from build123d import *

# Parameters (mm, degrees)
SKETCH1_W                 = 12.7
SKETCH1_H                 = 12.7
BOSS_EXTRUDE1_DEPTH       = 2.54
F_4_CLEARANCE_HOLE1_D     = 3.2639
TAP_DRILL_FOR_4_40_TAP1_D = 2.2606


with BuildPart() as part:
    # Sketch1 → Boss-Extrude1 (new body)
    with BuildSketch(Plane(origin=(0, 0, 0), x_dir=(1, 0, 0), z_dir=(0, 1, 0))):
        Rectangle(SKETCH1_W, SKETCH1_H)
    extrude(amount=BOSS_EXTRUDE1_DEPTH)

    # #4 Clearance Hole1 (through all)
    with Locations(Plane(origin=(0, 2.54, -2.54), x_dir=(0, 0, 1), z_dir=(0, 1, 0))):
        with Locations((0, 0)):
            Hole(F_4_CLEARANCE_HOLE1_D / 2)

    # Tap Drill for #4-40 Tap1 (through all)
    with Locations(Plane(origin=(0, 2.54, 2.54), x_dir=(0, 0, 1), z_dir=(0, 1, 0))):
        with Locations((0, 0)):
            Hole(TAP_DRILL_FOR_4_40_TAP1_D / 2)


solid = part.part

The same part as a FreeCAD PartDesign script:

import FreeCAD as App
import Part
import Sketcher
from FreeCAD import Vector
Q = App.Units.Quantity


def add_polygon(sketch, points):
    """Adds a closed chain of lines whose ends are joined by coincident constraints."""
    first, n = sketch.GeometryCount, len(points)
    for a, b in zip(points, points[1:] + points[:1]):
        sketch.addGeometry(Part.LineSegment(App.Vector(*a, 0), App.Vector(*b, 0)), False)
    for i in range(n):
        sketch.addConstraint(Sketcher.Constraint("Coincident", first + i, 2, first + (i + 1) % n, 1))

doc = App.newDocument("Part")
body = doc.addObject("PartDesign::Body", "Body")

sketch1 = body.newObject("Sketcher::SketchObject", "Sketch")
sketch1.AttachmentSupport = (doc.getObject("XZ_Plane"), [""])
sketch1.MapMode = "FlatFace"
add_polygon(sketch1, [(-6.35, -6.35), (-6.35, 6.35), (6.35, 6.35), (6.35, -6.35)])
sketch1.addConstraint(Sketcher.Constraint("Vertical", 0))
sketch1.addConstraint(Sketcher.Constraint("Horizontal", 1))
sketch1.addConstraint(Sketcher.Constraint("Vertical", 2))
sketch1.addConstraint(Sketcher.Constraint("Horizontal", 3))
sketch1.addConstraint(Sketcher.Constraint("Symmetric", 0, 2, 2, 2, -1, 1))
sketch1.addConstraint(Sketcher.Constraint("Equal", 3, 0))
sketch1.addConstraint(Sketcher.Constraint("DistanceX", 1, 1, 1, 2, Q("0.5 in")))
pad1 = body.newObject("PartDesign::Pad", "Pad")
pad1.Profile = sketch1
pad1.Length = Q("0.1 in")
pad1.Reversed = True

sketch2 = body.newObject("Sketcher::SketchObject", "Sketch001")
sketch2.AttachmentSupport = (doc.getObject("XZ_Plane"), [""])
sketch2.MapMode = "FlatFace"
sketch2.AttachmentOffset = App.Placement(Vector(0, 0, -0.1 * 25.4), App.Rotation())
sketch2.addGeometry(Part.Circle(Vector(0, -2.54, 0), Vector(0, 0, 1), 1.63195), False)
sketch2.addConstraint(Sketcher.Constraint("PointOnObject", 0, 3, -2))
sketch2.addConstraint(Sketcher.Constraint("Diameter", 0, Q("0.1285 in")))
sketch2.addConstraint(Sketcher.Constraint("DistanceY", 0, 3, -1, 1, Q("0.1 in")))
doc.recompute()
hole = body.newObject("PartDesign::Hole", "Hole")
hole.Profile = sketch2
hole.ThreadType = "None"
hole.Diameter = Q("0.1285 in")
hole.DepthType = "ThroughAll"
hole.Reversed = True

sketch3 = body.newObject("Sketcher::SketchObject", "Sketch002")
sketch3.AttachmentSupport = (doc.getObject("XZ_Plane"), [""])
sketch3.MapMode = "FlatFace"
sketch3.AttachmentOffset = App.Placement(Vector(0, 0, -0.1 * 25.4), App.Rotation())
sketch3.addGeometry(Part.Circle(Vector(0, 2.54, 0), Vector(0, 0, 1), 1.1303), False)
sketch3.addConstraint(Sketcher.Constraint("PointOnObject", 0, 3, -2))
sketch3.addConstraint(Sketcher.Constraint("Diameter", 0, Q("0.089 in")))
sketch3.addConstraint(Sketcher.Constraint("DistanceY", -1, 1, 0, 3, Q("0.1 in")))
doc.recompute()
hole2 = body.newObject("PartDesign::Hole", "Hole001")
hole2.Profile = sketch3
hole2.ThreadType = "None"
hole2.Diameter = Q("0.089 in")
hole2.DepthType = "ThroughAll"
hole2.Reversed = True

doc.recompute()
